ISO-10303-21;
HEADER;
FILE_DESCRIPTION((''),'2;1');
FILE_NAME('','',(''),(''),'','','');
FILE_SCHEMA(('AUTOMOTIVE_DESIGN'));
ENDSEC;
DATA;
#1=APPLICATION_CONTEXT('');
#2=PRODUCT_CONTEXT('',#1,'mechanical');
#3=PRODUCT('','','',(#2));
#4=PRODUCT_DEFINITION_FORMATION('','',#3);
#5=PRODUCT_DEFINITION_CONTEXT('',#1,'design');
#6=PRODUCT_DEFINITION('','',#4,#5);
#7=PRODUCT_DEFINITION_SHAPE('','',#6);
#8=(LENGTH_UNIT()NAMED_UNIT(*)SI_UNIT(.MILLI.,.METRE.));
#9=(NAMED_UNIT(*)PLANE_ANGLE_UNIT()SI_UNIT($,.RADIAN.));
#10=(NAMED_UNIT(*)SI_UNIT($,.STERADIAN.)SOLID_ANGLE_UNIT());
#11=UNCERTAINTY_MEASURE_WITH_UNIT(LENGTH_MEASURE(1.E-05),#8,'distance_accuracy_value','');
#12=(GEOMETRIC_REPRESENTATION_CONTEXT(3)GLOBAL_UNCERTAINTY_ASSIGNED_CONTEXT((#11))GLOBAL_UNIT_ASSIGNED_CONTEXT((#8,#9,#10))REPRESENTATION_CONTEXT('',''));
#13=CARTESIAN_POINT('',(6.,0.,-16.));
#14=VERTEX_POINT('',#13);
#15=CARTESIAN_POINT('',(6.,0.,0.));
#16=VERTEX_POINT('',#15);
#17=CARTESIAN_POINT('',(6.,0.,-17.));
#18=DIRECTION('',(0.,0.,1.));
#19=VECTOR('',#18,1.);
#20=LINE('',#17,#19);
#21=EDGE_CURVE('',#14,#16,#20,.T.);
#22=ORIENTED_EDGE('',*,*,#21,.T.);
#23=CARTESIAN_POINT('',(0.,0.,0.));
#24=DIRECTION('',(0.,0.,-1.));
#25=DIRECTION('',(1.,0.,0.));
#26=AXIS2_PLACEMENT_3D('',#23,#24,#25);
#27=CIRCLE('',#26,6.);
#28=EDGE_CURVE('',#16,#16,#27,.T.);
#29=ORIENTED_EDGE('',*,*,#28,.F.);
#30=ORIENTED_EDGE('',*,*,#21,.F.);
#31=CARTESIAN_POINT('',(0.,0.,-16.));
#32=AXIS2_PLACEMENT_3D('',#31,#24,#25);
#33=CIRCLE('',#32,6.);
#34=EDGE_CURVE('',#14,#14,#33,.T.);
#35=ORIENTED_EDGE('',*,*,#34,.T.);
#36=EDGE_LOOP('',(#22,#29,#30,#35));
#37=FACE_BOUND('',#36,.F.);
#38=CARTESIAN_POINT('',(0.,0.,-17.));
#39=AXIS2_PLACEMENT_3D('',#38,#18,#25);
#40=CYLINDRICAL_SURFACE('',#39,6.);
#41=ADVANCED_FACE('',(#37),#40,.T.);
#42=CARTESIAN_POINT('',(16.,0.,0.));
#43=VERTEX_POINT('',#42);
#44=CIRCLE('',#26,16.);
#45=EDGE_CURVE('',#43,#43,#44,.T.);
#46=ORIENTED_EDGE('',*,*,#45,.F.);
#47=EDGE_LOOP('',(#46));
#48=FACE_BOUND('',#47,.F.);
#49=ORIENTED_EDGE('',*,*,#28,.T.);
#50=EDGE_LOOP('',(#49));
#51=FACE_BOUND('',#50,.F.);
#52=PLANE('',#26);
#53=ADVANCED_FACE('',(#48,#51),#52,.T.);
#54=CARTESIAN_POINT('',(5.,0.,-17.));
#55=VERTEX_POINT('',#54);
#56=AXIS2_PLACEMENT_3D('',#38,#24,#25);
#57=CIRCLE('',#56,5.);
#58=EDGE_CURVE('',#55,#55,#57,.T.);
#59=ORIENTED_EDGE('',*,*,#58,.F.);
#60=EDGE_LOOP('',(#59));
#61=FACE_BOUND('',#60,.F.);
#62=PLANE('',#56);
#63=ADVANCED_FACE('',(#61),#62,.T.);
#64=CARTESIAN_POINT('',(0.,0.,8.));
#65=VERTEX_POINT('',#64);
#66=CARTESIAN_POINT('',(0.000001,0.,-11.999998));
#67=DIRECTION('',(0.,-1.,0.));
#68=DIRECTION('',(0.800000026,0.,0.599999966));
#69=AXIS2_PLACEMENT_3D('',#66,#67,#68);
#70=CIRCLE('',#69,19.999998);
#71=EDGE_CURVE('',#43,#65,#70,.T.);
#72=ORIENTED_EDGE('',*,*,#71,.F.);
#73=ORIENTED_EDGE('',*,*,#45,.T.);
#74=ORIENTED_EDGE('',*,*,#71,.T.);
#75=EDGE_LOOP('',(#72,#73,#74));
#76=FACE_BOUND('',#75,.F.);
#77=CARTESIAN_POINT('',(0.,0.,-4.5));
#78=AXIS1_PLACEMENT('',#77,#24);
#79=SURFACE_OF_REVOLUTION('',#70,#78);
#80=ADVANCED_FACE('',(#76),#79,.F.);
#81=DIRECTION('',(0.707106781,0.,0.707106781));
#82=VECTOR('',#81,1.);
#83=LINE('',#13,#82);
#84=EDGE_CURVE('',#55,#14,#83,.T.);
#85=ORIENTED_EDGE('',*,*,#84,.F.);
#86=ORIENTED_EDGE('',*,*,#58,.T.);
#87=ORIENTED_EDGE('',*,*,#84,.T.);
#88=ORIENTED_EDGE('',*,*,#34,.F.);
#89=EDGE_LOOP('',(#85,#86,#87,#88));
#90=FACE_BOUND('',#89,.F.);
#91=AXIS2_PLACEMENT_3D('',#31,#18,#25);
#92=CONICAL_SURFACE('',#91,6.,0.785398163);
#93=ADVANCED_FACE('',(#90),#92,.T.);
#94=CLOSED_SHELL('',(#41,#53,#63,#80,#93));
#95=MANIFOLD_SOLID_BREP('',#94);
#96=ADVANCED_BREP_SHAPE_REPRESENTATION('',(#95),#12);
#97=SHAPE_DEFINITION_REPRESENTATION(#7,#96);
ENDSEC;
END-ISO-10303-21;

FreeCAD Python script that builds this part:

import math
import FreeCAD as App
import Part
import Sketcher

V = App.Vector
Q = App.Units.Quantity


def edges_at(feature, points):
    """Names of the edges that pass closest to the given points."""
    edges = feature.Shape.Edges
    near = lambda p: min(range(len(edges)), key=lambda i: edges[i].distToShape(Part.Vertex(*p))[0])
    return sorted({f"Edge{near(p) + 1}" for p in points})

doc = App.newDocument("Part")
params = doc.addObject("Spreadsheet::Sheet", "Params")
for row, (alias, value) in enumerate([
    ("sketch1_radius", "19.999998 mm"),
    ("sketch1_width", "6 mm"),
    ("sketch1_width2", "10 mm"),
    ("sketch1_height", "25 mm"),
    ("revolution_angle", "360 deg"),
    ("chamfer_size", "1 mm"),
], start=1):
    params.set(f"A{row}", alias)
    params.set(f"B{row}", "=" + value)
    params.setAlias(f"B{row}", alias)

body = doc.addObject("PartDesign::Body", "Body")

# Sketch on XZ plane
sketch1 = body.newObject("Sketcher::SketchObject", "Sketch")
sketch1.AttachmentSupport = (doc.getObject("XZ_Plane"), [""])
sketch1.MapMode = "FlatFace"
sketch1.addGeometry(Part.LineSegment(V(0, 8, 0), V(0, -17, 0)), False)
sketch1.addGeometry(Part.LineSegment(V(0, -17, 0), V(6, -17, 0)), False)
sketch1.addGeometry(Part.LineSegment(V(6, -17, 0), V(6, 0, 0)), False)
sketch1.addGeometry(Part.LineSegment(V(6, 0, 0), V(16, 0, 0)), False)
sketch1.addGeometry(Part.ArcOfCircle(Part.Circle(V(0, -12, 0), V(0, 0, 1), 20), math.radians(37), math.radians(90)), False)
sketch1.addConstraint(Sketcher.Constraint("Coincident", 0, 2, 1, 1))
sketch1.addConstraint(Sketcher.Constraint("Coincident", 1, 2, 2, 1))
sketch1.addConstraint(Sketcher.Constraint("Coincident", 2, 2, 3, 1))
sketch1.addConstraint(Sketcher.Constraint("Coincident", 3, 2, 4, 1))
sketch1.addConstraint(Sketcher.Constraint("Coincident", 4, 2, 0, 1))
sketch1.addConstraint(Sketcher.Constraint("Vertical", 0))
sketch1.addConstraint(Sketcher.Constraint("Horizontal", 1))
sketch1.addConstraint(Sketcher.Constraint("Vertical", 2))
sketch1.addConstraint(Sketcher.Constraint("Horizontal", 3))
sketch1.addConstraint(Sketcher.Constraint("PointOnObject", 4, 3, -2))
sketch1.addConstraint(Sketcher.Constraint("PointOnObject", 0, 2, -2))
sketch1.addConstraint(Sketcher.Constraint("PointOnObject", 2, 2, -1))
sketch1.addConstraint(Sketcher.Constraint("Radius", 4, Q("19.999998 mm")))
sketch1.addConstraint(Sketcher.Constraint("DistanceX", 1, 1, 1, 2, Q("6 mm")))
sketch1.addConstraint(Sketcher.Constraint("DistanceX", 3, 1, 3, 2, Q("10 mm")))
sketch1.addConstraint(Sketcher.Constraint("DistanceY", 0, 2, 0, 1, Q("25 mm")))
sketch1.setExpression("Constraints[12]", "Params.sketch1_radius")
sketch1.setExpression("Constraints[13]", "Params.sketch1_width")
sketch1.setExpression("Constraints[14]", "Params.sketch1_width2")
sketch1.setExpression("Constraints[15]", "Params.sketch1_height")
revolution = body.newObject("PartDesign::Revolution", "Revolution")
revolution.Profile = sketch1
revolution.ReferenceAxis = (sketch1, ["V_Axis"])
revolution.setExpression("Angle", "Params.revolution_angle")
doc.recompute()

chamfer = body.newObject("PartDesign::Chamfer", "Chamfer")
chamfer.Base = (revolution, edges_at(revolution, [(-6, 0, -17)]))
chamfer.setExpression("Size", "Params.chamfer_size")

doc.recompute()
